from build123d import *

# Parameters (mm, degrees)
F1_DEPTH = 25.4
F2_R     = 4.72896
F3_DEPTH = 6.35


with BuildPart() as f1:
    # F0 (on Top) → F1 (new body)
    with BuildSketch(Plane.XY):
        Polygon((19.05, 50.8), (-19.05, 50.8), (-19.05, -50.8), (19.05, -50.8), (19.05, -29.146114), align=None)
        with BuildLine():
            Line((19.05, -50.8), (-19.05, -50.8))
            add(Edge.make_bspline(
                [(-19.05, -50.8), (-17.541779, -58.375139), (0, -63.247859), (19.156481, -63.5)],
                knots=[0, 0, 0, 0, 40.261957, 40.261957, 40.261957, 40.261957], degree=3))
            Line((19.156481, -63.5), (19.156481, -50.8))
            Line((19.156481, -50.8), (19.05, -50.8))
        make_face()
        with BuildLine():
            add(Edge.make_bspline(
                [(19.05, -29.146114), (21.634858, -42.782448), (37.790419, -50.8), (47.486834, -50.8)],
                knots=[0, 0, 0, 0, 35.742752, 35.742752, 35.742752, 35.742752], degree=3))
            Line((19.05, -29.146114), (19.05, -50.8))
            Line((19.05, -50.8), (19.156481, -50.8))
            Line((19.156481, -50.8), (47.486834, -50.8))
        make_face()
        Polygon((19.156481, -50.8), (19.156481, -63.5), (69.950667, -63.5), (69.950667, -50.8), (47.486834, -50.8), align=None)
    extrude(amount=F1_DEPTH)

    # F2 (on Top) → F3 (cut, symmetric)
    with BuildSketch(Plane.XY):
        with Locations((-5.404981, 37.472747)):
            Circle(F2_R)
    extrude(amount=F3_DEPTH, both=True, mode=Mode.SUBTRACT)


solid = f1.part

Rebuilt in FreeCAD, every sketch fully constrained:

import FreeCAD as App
import Part
import Sketcher

V = App.Vector
Q = App.Units.Quantity

doc = App.newDocument("Part")
body = doc.addObject("PartDesign::Body", "Body")

# Sketch on XY plane
sketch1 = doc.addObject("Sketcher::SketchObject", "Sketch")
body.addObject(sketch1)
sketch1.AttachmentSupport = (doc.XY_Plane, [""])
sketch1.MapMode = "FlatFace"
sketch1.addGeometry(Part.LineSegment(V(19.05, 50.8, 0), V(-19.05, 50.8, 0)), False)
sketch1.addGeometry(Part.LineSegment(V(-19.05, 50.8, 0), V(-19.05, -50.8, 0)), False)
sketch1.addGeometry(Part.BSplineCurve([V(-19.05, -50.8, 0), V(-17.541779, -58.375139, 0), V(0, -63.247859, 0), V(19.156481, -63.5, 0)], [4, 4], [0, 40.261957], False, 3, [1, 1, 1, 1], False), False)
sketch1.addGeometry(Part.LineSegment(V(19.156481, -63.5, 0), V(69.950667, -63.5, 0)), False)
sketch1.addGeometry(Part.LineSegment(V(69.950667, -63.5, 0), V(69.950667, -50.8, 0)), False)
sketch1.addGeometry(Part.LineSegment(V(69.950667, -50.8, 0), V(47.486834, -50.8, 0)), False)
sketch1.addGeometry(Part.BSplineCurve([V(19.05, -29.146114, 0), V(21.634858, -42.782448, 0), V(37.790419, -50.8, 0), V(47.486834, -50.8, 0)], [4, 4], [0, 35.742752], False, 3, [1, 1, 1, 1], False), False)
sketch1.addGeometry(Part.LineSegment(V(19.05, -29.146114, 0), V(19.05, 50.8, 0)), False)
sketch1.addConstraint(Sketcher.Constraint("Block", 2))
sketch1.addConstraint(Sketcher.Constraint("Block", 6))
sketch1.addConstraint(Sketcher.Constraint("Coincident", 0, 2, 1, 1))
sketch1.addConstraint(Sketcher.Constraint("Coincident", 1, 2, 2, 1))
sketch1.addConstraint(Sketcher.Constraint("Coincident", 2, 2, 3, 1))
sketch1.addConstraint(Sketcher.Constraint("Coincident", 3, 2, 4, 1))
sketch1.addConstraint(Sketcher.Constraint("Coincident", 4, 2, 5, 1))
sketch1.addConstraint(Sketcher.Constraint("Coincident", 5, 2, 6, 2))
sketch1.addConstraint(Sketcher.Constraint("Coincident", 6, 1, 7, 1))
sketch1.addConstraint(Sketcher.Constraint("Coincident", 7, 2, 0, 1))
sketch1.addConstraint(Sketcher.Constraint("Horizontal", 0))
sketch1.addConstraint(Sketcher.Constraint("Vertical", 1))
sketch1.addConstraint(Sketcher.Constraint("Horizontal", 3))
sketch1.addConstraint(Sketcher.Constraint("Vertical", 4))
sketch1.addConstraint(Sketcher.Constraint("Horizontal", 5))
sketch1.addConstraint(Sketcher.Constraint("Vertical", 7))
sketch1.addConstraint(Sketcher.Constraint("DistanceY", 1, 2, 1, 1, Q("4 in")))
sketch1.addConstraint(Sketcher.Constraint("DistanceX", 3, 1, 3, 2, Q("50.794186 mm")))
pad1 = doc.addObject("PartDesign::Pad", "Pad")
body.addObject(pad1)
pad1.Profile = sketch1
pad1.Length = Q("1 in")

# Sketch on XY plane
sketch2 = doc.addObject("Sketcher::SketchObject", "Sketch001")
body.addObject(sketch2)
sketch2.AttachmentSupport = (doc.XY_Plane, [""])
sketch2.MapMode = "FlatFace"
sketch2.addGeometry(Part.Circle(V(-5.4, 37.5, 0), V(0, 0, 1), 4.7), False)
sketch2.addConstraint(Sketcher.Constraint("Diameter", 0, Q("9.45792 mm")))
sketch2.addConstraint(Sketcher.Constraint("DistanceX", 0, 3, -1, 1, Q("5.404981 mm")))
sketch2.addConstraint(Sketcher.Constraint("DistanceY", -1, 1, 0, 3, Q("37.472747 mm")))
pocket1 = doc.addObject("PartDesign::Pocket", "Pocket")
body.addObject(pocket1)
pocket1.Profile = sketch2
pocket1.Length = Q("0.5 in")
pocket1.Midplane = True

doc.recompute()
